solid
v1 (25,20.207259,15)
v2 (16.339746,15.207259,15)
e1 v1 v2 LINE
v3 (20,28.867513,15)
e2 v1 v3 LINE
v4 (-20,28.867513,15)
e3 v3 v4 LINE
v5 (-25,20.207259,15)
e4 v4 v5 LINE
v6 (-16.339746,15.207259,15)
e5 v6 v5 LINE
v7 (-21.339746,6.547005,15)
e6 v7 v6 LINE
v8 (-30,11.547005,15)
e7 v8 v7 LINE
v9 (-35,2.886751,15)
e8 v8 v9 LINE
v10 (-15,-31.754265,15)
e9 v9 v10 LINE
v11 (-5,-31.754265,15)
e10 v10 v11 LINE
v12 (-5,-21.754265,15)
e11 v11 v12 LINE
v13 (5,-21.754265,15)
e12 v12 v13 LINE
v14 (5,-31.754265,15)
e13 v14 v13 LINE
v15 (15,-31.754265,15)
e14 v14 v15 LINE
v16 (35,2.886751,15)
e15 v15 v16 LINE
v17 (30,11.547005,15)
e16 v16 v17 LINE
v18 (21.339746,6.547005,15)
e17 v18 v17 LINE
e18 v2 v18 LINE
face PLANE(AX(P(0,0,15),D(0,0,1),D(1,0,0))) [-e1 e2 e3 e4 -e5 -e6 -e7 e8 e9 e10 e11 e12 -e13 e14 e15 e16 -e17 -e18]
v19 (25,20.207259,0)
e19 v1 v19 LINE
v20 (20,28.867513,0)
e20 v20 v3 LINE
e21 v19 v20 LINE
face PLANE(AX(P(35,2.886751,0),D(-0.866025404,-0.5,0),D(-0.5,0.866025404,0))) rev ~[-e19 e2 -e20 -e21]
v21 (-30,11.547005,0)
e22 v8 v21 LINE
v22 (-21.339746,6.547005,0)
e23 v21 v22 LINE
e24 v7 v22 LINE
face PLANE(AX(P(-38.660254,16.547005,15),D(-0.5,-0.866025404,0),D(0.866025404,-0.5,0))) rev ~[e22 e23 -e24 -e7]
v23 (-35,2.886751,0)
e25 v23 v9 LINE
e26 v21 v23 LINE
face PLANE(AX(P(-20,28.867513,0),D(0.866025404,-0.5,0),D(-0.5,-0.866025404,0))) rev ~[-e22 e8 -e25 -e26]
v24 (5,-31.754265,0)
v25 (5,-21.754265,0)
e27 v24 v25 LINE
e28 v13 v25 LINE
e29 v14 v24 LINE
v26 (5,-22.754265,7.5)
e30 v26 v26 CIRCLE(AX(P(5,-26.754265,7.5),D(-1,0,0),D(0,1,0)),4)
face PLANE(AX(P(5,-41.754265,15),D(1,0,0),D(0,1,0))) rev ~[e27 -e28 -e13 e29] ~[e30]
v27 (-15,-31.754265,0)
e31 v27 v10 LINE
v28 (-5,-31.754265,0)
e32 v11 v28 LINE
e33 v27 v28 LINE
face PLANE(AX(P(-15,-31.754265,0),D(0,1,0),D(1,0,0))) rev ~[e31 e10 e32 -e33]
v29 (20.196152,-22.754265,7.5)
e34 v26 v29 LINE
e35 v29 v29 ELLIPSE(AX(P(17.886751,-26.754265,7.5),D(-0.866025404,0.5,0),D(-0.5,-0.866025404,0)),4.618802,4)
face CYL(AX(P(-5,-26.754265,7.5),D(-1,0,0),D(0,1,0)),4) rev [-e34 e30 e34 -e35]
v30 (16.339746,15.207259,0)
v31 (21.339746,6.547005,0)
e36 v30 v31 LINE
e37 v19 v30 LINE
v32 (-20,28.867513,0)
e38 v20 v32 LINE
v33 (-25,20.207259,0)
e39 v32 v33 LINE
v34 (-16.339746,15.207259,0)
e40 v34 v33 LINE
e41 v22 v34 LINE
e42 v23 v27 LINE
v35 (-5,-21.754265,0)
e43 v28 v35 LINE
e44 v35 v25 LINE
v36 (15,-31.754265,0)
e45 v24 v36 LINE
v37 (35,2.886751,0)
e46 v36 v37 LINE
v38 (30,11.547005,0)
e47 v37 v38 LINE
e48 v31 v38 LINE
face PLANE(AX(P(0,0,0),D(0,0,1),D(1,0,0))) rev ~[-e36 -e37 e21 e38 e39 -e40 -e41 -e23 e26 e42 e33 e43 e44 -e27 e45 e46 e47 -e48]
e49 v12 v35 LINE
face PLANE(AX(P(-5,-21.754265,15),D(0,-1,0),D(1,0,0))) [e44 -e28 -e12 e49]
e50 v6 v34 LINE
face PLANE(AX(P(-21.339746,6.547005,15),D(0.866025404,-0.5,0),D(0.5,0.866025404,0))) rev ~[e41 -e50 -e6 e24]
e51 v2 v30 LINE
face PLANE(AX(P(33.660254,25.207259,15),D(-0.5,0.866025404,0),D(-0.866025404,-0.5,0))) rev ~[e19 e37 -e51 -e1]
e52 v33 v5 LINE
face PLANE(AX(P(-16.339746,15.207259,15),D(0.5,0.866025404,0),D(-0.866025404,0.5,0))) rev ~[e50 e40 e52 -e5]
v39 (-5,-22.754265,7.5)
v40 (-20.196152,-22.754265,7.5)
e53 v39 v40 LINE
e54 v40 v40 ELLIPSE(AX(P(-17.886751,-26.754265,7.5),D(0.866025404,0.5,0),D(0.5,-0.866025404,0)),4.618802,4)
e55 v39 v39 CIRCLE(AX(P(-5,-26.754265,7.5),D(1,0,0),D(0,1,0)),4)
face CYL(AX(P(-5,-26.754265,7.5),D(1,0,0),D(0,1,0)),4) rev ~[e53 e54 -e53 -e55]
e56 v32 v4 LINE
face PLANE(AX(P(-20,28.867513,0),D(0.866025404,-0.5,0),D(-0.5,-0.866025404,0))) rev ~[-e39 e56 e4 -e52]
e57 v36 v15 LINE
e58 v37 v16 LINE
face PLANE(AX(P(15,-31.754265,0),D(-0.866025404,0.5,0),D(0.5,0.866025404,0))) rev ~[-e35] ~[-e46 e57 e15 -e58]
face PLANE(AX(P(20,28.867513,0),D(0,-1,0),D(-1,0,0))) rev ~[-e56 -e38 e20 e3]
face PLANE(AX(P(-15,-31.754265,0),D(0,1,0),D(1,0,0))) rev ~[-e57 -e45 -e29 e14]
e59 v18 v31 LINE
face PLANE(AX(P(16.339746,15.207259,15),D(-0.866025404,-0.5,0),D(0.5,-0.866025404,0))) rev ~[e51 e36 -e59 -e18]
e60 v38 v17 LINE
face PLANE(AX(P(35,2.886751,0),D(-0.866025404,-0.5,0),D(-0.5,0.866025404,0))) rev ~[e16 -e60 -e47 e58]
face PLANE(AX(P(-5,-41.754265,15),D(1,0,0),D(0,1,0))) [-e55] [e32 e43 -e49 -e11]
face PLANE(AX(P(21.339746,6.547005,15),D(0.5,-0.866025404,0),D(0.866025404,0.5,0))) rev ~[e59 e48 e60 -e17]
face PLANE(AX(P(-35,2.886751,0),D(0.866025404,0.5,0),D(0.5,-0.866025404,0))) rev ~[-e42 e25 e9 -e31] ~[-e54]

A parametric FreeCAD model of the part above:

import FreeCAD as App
import Part
import Sketcher
from FreeCAD import Vector
Q = App.Units.Quantity


def add_polygon(sketch, points):
    """Adds a closed chain of lines whose ends are joined by coincident constraints."""
    first, n = sketch.GeometryCount, len(points)
    for a, b in zip(points, points[1:] + points[:1]):
        sketch.addGeometry(Part.LineSegment(App.Vector(*a, 0), App.Vector(*b, 0)), False)
    for i in range(n):
        sketch.addConstraint(Sketcher.Constraint("Coincident", first + i, 2, first + (i + 1) % n, 1))

doc = App.newDocument("Part")
body = doc.addObject("PartDesign::Body", "Body")

# Sketch on XY plane
sketch1 = body.newObject("Sketcher::SketchObject", "Sketch")
sketch1.AttachmentSupport = (doc.getObject("XY_Plane"), [""])
sketch1.MapMode = "FlatFace"
add_polygon(sketch1, [(-20, 28.867513), (-35, 2.886751), (-15, -31.754265), (15, -31.754265), (35, 2.886751), (20, 28.867513)])  # lines 0-5
sketch1.addConstraint(Sketcher.Constraint("Horizontal", 2))
sketch1.addConstraint(Sketcher.Constraint("Horizontal", 5))
sketch1.addConstraint(Sketcher.Constraint("Symmetric", 0, 2, 3, 2, -2))
sketch1.addConstraint(Sketcher.Constraint("Parallel", 0, 3))
sketch1.addConstraint(Sketcher.Constraint("Parallel", 1, 4))
sketch1.addConstraint(Sketcher.Constraint("Equal", 1, 3))
sketch1.addConstraint(Sketcher.Constraint("DistanceX", 2, 1, 2, 2, 30.0))
sketch1.addConstraint(Sketcher.Constraint("DistanceX", 5, 2, 5, 1, 40.0))
sketch1.addConstraint(Sketcher.Constraint("Angle", 0, Q("-120 deg")))
sketch1.addConstraint(Sketcher.Constraint("Distance", 0, 30.0))
sketch1.addConstraint(Sketcher.Constraint("DistanceY", -1, 1, 0, 2, 2.886751))
pad1 = body.newObject("PartDesign::Pad", "Pad")
pad1.Profile = sketch1
pad1.Length = 15

# Sketch on XY plane
sketch2 = body.newObject("Sketcher::SketchObject", "Sketch001")
sketch2.AttachmentSupport = (doc.getObject("XY_Plane"), [""])
sketch2.MapMode = "FlatFace"
sketch2.AttachmentOffset = App.Placement(Vector(0, 0, 15), App.Rotation())
add_polygon(sketch2, [(-5, -21.754265), (-5, -41.754265), (5, -41.754265), (5, -21.754265)])  # lines 0-3
add_polygon(sketch2, [(-38.660254, 16.547005), (-21.339746, 6.547005), (-16.339746, 15.207259), (-33.660254, 25.207259)])  # lines 4-7
add_polygon(sketch2, [(33.660254, 25.207259), (16.339746, 15.207259), (21.339746, 6.547005), (38.660254, 16.547005)])  # lines 8-11
sketch2.addConstraint(Sketcher.Constraint("Vertical", 0))
sketch2.addConstraint(Sketcher.Constraint("Horizontal", 1))
sketch2.addConstraint(Sketcher.Constraint("Vertical", 2))
sketch2.addConstraint(Sketcher.Constraint("Horizontal", 3))
sketch2.addConstraint(Sketcher.Constraint("Symmetric", 5, 2, 8, 2, -2))
sketch2.addConstraint(Sketcher.Constraint("Symmetric", 4, 2, 9, 2, -2))
sketch2.addConstraint(Sketcher.Constraint("Symmetric", 7, 2, 10, 2, -2))
sketch2.addConstraint(Sketcher.Constraint("Symmetric", 6, 2, 11, 2, -2))
sketch2.addConstraint(Sketcher.Constraint("Perpendicular", 4, 5))
sketch2.addConstraint(Sketcher.Constraint("Perpendicular", 5, 6))
sketch2.addConstraint(Sketcher.Constraint("Perpendicular", 6, 7))
sketch2.addConstraint(Sketcher.Constraint("DistanceX", 1, 1, 1, 2, 10.0))
sketch2.addConstraint(Sketcher.Constraint("DistanceY", 0, 2, 0, 1, 20.0))
sketch2.addConstraint(Sketcher.Constraint("Angle", 4, Q("-30 deg")))
sketch2.addConstraint(Sketcher.Constraint("Distance", 4, 20.0))
sketch2.addConstraint(Sketcher.Constraint("Distance", 5, 10.0))
sketch2.addConstraint(Sketcher.Constraint("DistanceX", 0, 2, -1, 1, 5.0))
sketch2.addConstraint(Sketcher.Constraint("DistanceX", 6, 2, 8, 2, 50.0))
sketch2.addConstraint(Sketcher.Constraint("DistanceY", -1, 1, 5, 2, 15.207259))
sketch2.addConstraint(Sketcher.Constraint("DistanceY", 3, 2, 4, 2, 28.30127))
pocket1 = body.newObject("PartDesign::Pocket", "Pocket")
pocket1.Profile = sketch2
pocket1.Type = "ThroughAll"

# Sketch on YZ plane
sketch3 = body.newObject("Sketcher::SketchObject", "Sketch002")
sketch3.AttachmentSupport = (doc.getObject("YZ_Plane"), [""])
sketch3.MapMode = "FlatFace"
sketch3.AttachmentOffset = App.Placement(Vector(0, 0, -5), App.Rotation())
sketch3.addGeometry(Part.Circle(Vector(-26.754265, 7.5, 0), Vector(0, 0, 1), 4), False)
sketch3.addConstraint(Sketcher.Constraint("Diameter", 0, 8.0))
sketch3.addConstraint(Sketcher.Constraint("DistanceY", -1, 1, 0, 3, 7.5))
sketch3.addConstraint(Sketcher.Constraint("DistanceX", 0, 3, -1, 1, 26.754265))
pocket2 = body.newObject("PartDesign::Pocket", "Pocket001")
pocket2.Profile = sketch3
pocket2.Type = "ThroughAll"
pocket2.Midplane = True

doc.recompute()
